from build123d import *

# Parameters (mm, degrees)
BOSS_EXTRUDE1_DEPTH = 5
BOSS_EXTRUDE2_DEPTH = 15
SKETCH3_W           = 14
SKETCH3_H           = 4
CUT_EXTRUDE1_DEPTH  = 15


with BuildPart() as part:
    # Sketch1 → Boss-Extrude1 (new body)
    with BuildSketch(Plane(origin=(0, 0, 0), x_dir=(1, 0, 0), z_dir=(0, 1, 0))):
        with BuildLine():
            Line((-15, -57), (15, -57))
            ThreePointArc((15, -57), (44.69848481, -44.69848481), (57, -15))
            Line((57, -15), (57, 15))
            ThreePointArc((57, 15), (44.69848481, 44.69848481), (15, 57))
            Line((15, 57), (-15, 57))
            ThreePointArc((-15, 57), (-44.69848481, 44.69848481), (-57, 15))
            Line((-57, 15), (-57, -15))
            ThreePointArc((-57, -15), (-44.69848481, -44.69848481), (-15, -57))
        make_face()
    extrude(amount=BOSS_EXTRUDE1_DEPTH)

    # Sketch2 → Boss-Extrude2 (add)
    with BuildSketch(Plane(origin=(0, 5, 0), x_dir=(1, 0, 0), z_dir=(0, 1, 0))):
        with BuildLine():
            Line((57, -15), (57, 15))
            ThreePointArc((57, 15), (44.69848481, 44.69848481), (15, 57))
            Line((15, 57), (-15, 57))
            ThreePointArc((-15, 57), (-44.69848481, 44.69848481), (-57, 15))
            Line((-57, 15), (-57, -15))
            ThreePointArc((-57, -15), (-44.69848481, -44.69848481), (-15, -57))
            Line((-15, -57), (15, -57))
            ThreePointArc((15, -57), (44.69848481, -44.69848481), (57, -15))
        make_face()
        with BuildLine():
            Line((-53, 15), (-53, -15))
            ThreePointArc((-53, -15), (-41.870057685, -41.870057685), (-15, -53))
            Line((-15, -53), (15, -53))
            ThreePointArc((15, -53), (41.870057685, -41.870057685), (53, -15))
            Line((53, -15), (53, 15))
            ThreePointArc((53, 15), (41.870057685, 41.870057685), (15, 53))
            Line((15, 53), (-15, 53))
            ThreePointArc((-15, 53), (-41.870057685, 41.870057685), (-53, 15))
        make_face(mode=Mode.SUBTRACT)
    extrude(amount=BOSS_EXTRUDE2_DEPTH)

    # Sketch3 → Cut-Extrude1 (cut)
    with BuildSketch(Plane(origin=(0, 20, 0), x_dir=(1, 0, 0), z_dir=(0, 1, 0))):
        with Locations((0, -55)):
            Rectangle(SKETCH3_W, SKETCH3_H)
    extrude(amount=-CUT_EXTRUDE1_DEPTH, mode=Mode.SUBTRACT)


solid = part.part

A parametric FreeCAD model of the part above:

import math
import FreeCAD as App
import Part
import Sketcher

V = App.Vector

doc = App.newDocument("Part")
body = doc.addObject("PartDesign::Body", "Body")

sketch1 = body.newObject("Sketcher::SketchObject", "Sketch")
sketch1.AttachmentSupport = (doc.getObject("XZ_Plane"), [""])
sketch1.MapMode = "FlatFace"
sketch1.addGeometry([
    Part.LineSegment(V(-15, 57, 0), V(15, 57, 0)),
    Part.ArcOfCircle(Part.Circle(V(15, 15, 0), V(0, 0, 1), 42), math.radians(0), math.radians(90)),
    Part.LineSegment(V(57, 15, 0), V(57, -15, 0)),
    Part.ArcOfCircle(Part.Circle(V(15, -15, 0), V(0, 0, 1), 42), math.radians(-90), math.radians(0)),
    Part.LineSegment(V(15, -57, 0), V(-15, -57, 0)),
    Part.ArcOfCircle(Part.Circle(V(-15, -15, 0), V(0, 0, 1), 42), math.radians(180), math.radians(270)),
    Part.LineSegment(V(-57, -15, 0), V(-57, 15, 0)),
    Part.ArcOfCircle(Part.Circle(V(-15, 15, 0), V(0, 0, 1), 42), math.radians(90), math.radians(180)),
], False)
sketch1.addConstraint([
    Sketcher.Constraint("Tangent", 0, 2, 1, 2),
    Sketcher.Constraint("Tangent", 1, 1, 2, 1),
    Sketcher.Constraint("Tangent", 2, 2, 3, 2),
    Sketcher.Constraint("Tangent", 3, 1, 4, 1),
    Sketcher.Constraint("Tangent", 4, 2, 5, 2),
    Sketcher.Constraint("Tangent", 5, 1, 6, 1),
    Sketcher.Constraint("Tangent", 6, 2, 7, 2),
    Sketcher.Constraint("Tangent", 7, 1, 0, 1),
    Sketcher.Constraint("Horizontal", 0),
    Sketcher.Constraint("Vertical", 2),
    Sketcher.Constraint("Horizontal", 4),
    Sketcher.Constraint("Vertical", 6),
    Sketcher.Constraint("Equal", 1, 3),
    Sketcher.Constraint("Equal", 3, 5),
    Sketcher.Constraint("Equal", 5, 7),
    Sketcher.Constraint("Symmetric", 1, 3, 5, 3, -1, 1),
    Sketcher.Constraint("Equal", 4, 2),
    Sketcher.Constraint("Radius", 1, 42.0),
    Sketcher.Constraint("DistanceX", 0, 1, 0, 2, 30.0),
])
pad1 = body.newObject("PartDesign::Pad", "Pad")
pad1.Profile = sketch1
pad1.Length = 5
pad1.Reversed = True

sketch2 = body.newObject("Sketcher::SketchObject", "Sketch001")
sketch2.AttachmentSupport = (doc.getObject("XZ_Plane"), [""])
sketch2.MapMode = "FlatFace"
sketch2.AttachmentOffset = App.Placement(V(0, 0, -5), App.Rotation())
sketch2.addGeometry([
    Part.LineSegment(V(57, 15, 0), V(57, -15, 0)),
    Part.ArcOfCircle(Part.Circle(V(15, -15, 0), V(0, 0, 1), 42), math.radians(-90), math.radians(0)),
    Part.LineSegment(V(15, -57, 0), V(-15, -57, 0)),
    Part.ArcOfCircle(Part.Circle(V(-15, -15, 0), V(0, 0, 1), 42), math.radians(180), math.radians(270)),
    Part.LineSegment(V(-57, -15, 0), V(-57, 15, 0)),
    Part.ArcOfCircle(Part.Circle(V(-15, 15, 0), V(0, 0, 1), 42), math.radians(90), math.radians(180)),
    Part.LineSegment(V(-15, 57, 0), V(15, 57, 0)),
    Part.ArcOfCircle(Part.Circle(V(15, 15, 0), V(0, 0, 1), 42), math.radians(0), math.radians(90)),
    Part.LineSegment(V(-53, 15, 0), V(-53, -15, 0)),
    Part.ArcOfCircle(Part.Circle(V(-15, -15, 0), V(0, 0, 1), 38), math.radians(180), math.radians(270)),
    Part.LineSegment(V(-15, -53, 0), V(15, -53, 0)),
    Part.ArcOfCircle(Part.Circle(V(15, -15, 0), V(0, 0, 1), 38), math.radians(-90), math.radians(0)),
    Part.LineSegment(V(53, -15, 0), V(53, 15, 0)),
    Part.ArcOfCircle(Part.Circle(V(15, 15, 0), V(0, 0, 1), 38), math.radians(0), math.radians(90)),
    Part.LineSegment(V(15, 53, 0), V(-15, 53, 0)),
    Part.ArcOfCircle(Part.Circle(V(-15, 15, 0), V(0, 0, 1), 38), math.radians(90), math.radians(180)),
], False)
sketch2.addConstraint([
    Sketcher.Constraint("Tangent", 0, 2, 1, 2),
    Sketcher.Constraint("Tangent", 1, 1, 2, 1),
    Sketcher.Constraint("Tangent", 2, 2, 3, 2),
    Sketcher.Constraint("Tangent", 3, 1, 4, 1),
    Sketcher.Constraint("Tangent", 4, 2, 5, 2),
    Sketcher.Constraint("Tangent", 5, 1, 6, 1),
    Sketcher.Constraint("Tangent", 6, 2, 7, 2),
    Sketcher.Constraint("Tangent", 7, 1, 0, 1),
    Sketcher.Constraint("Tangent", 8, 2, 9, 1),
    Sketcher.Constraint("Tangent", 9, 2, 10, 1),
    Sketcher.Constraint("Tangent", 10, 2, 11, 1),
    Sketcher.Constraint("Tangent", 11, 2, 12, 1),
    Sketcher.Constraint("Tangent", 12, 2, 13, 1),
    Sketcher.Constraint("Tangent", 13, 2, 14, 1),
    Sketcher.Constraint("Tangent", 14, 2, 15, 1),
    Sketcher.Constraint("Tangent", 15, 2, 8, 1),
    Sketcher.Constraint("Vertical", 0),
    Sketcher.Constraint("Horizontal", 2),
    Sketcher.Constraint("Vertical", 4),
    Sketcher.Constraint("Horizontal", 6),
    Sketcher.Constraint("Vertical", 8),
    Sketcher.Constraint("Horizontal", 10),
    Sketcher.Constraint("Vertical", 12),
    Sketcher.Constraint("Horizontal", 14),
    Sketcher.Constraint("Coincident", 9, 3, 3, 3),
    Sketcher.Constraint("Coincident", 11, 3, 1, 3),
    Sketcher.Constraint("Coincident", 13, 3, 7, 3),
    Sketcher.Constraint("Equal", 1, 3),
    Sketcher.Constraint("Equal", 3, 5),
    Sketcher.Constraint("Equal", 5, 7),
    Sketcher.Constraint("Equal", 13, 15),
    Sketcher.Constraint("Symmetric", 1, 3, 5, 3, -1, 1),
    Sketcher.Constraint("Equal", 14, 0),
    Sketcher.Constraint("Radius", 1, 42.0),
    Sketcher.Constraint("Radius", 9, 38.0),
    Sketcher.Constraint("DistanceX", 2, 2, 2, 1, 30.0),
])
pad2 = body.newObject("PartDesign::Pad", "Pad001")
pad2.Profile = sketch2
pad2.Length = 15
pad2.Reversed = True

sketch3 = body.newObject("Sketcher::SketchObject", "Sketch002")
sketch3.AttachmentSupport = (doc.getObject("XZ_Plane"), [""])
sketch3.MapMode = "FlatFace"
sketch3.AttachmentOffset = App.Placement(V(0, 0, -20), App.Rotation())
sketch3.addGeometry([
    Part.LineSegment(V(-7, 53, 0), V(-7, 57, 0)),
    Part.LineSegment(V(-7, 57, 0), V(7, 57, 0)),
    Part.LineSegment(V(7, 57, 0), V(7, 53, 0)),
    Part.LineSegment(V(7, 53, 0), V(-7, 53, 0)),
], False)
sketch3.addConstraint([
    Sketcher.Constraint("Coincident", 0, 2, 1, 1),
    Sketcher.Constraint("Coincident", 1, 2, 2, 1),
    Sketcher.Constraint("Coincident", 2, 2, 3, 1),
    Sketcher.Constraint("Coincident", 3, 2, 0, 1),
    Sketcher.Constraint("Vertical", 0),
    Sketcher.Constraint("Horizontal", 1),
    Sketcher.Constraint("Vertical", 2),
    Sketcher.Constraint("Horizontal", 3),
    Sketcher.Constraint("DistanceX", 1, 1, 1, 2, 14.0),
    Sketcher.Constraint("DistanceY", 0, 1, 0, 2, 4.0),
    Sketcher.Constraint("DistanceX", 0, 2, -1, 1, 7.0),
    Sketcher.Constraint("DistanceY", -1, 1, 0, 2, 57.0),
])
pocket1 = body.newObject("PartDesign::Pocket", "Pocket")
pocket1.Profile = sketch3
pocket1.Length = 15
pocket1.Reversed = True

doc.recompute()
